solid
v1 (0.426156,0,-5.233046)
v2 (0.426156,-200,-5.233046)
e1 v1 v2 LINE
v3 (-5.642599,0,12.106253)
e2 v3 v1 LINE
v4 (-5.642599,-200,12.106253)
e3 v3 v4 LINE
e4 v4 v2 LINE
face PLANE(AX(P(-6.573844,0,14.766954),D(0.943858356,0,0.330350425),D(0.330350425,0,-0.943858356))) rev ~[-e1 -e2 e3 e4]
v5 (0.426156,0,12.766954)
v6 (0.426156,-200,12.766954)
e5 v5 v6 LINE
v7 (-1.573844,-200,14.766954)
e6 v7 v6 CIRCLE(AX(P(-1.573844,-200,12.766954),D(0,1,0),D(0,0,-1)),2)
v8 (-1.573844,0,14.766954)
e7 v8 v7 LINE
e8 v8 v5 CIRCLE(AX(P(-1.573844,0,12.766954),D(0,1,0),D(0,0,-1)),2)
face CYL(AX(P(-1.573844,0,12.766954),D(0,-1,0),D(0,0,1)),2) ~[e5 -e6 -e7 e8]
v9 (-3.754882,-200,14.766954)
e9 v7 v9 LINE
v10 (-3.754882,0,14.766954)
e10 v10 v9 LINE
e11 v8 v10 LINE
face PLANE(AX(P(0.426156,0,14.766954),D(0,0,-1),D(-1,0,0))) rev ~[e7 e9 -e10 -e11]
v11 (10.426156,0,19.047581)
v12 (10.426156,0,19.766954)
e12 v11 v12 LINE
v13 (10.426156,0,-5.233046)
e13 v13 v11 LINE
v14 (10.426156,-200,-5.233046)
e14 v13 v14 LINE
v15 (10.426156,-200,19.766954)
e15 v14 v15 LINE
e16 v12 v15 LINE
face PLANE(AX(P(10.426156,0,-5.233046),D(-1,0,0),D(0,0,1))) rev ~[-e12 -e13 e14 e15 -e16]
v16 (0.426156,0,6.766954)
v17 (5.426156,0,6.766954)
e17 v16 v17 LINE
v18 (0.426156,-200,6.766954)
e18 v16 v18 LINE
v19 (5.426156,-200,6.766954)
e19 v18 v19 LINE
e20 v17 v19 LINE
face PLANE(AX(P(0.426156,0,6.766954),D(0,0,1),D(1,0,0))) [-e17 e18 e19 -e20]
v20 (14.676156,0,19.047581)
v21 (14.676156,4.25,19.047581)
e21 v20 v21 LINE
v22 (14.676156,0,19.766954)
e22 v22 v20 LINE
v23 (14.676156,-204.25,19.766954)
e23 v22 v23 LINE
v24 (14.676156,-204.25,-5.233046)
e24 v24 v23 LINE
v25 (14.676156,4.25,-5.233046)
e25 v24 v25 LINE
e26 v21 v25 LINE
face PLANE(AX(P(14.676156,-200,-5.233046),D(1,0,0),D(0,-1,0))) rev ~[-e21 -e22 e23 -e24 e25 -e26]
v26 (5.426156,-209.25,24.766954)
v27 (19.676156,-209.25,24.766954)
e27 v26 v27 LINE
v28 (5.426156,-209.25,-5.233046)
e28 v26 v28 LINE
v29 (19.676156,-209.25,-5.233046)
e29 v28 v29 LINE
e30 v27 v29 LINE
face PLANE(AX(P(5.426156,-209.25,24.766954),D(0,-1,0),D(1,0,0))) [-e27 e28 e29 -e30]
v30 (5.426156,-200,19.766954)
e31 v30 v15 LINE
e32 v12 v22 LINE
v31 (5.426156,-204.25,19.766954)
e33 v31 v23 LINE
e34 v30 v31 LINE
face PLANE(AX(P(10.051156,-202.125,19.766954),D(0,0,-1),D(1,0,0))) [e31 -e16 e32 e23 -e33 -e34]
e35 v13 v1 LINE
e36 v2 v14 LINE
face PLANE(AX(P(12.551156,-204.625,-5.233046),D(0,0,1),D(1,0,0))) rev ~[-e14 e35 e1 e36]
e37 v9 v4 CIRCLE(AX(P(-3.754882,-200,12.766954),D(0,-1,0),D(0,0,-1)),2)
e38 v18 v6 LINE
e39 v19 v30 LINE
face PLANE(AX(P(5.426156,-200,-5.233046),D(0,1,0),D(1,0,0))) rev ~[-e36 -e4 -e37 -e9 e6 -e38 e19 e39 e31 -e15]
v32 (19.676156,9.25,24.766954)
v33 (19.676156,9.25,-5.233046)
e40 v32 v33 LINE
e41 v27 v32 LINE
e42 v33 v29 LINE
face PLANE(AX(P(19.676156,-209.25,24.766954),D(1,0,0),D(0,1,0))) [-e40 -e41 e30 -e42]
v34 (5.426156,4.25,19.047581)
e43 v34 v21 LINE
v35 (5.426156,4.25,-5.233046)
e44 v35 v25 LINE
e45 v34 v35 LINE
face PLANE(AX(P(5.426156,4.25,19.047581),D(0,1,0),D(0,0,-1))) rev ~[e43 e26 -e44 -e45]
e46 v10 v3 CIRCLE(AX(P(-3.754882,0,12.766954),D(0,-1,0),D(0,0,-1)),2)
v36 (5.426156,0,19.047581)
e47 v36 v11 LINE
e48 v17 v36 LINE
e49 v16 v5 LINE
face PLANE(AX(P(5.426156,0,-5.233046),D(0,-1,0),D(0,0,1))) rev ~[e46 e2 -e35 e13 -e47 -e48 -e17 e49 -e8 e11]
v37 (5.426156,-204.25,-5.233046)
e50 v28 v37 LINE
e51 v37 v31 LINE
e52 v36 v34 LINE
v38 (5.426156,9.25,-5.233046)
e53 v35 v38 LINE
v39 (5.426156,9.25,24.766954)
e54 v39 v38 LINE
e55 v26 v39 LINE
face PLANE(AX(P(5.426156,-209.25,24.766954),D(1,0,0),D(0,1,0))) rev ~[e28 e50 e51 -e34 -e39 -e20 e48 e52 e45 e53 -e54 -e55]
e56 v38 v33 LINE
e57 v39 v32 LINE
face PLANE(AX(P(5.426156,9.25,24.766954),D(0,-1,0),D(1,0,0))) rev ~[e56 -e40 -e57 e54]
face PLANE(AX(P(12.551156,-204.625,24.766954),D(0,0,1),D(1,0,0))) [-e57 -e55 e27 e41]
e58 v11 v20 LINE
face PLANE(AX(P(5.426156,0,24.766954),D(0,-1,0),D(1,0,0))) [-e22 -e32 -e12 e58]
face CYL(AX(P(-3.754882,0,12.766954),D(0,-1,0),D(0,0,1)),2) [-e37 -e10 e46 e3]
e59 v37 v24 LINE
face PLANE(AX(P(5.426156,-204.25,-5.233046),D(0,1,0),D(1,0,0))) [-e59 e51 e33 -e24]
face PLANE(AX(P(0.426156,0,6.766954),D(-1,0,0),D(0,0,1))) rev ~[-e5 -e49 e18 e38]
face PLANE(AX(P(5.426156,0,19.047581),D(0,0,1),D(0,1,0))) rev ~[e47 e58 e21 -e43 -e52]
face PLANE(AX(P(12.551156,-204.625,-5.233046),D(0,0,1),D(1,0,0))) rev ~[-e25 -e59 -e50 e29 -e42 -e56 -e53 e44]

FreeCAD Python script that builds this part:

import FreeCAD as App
import Part
import Sketcher
from FreeCAD import Vector


def edges_at(feature, points):
    """Names of the edges that pass closest to the given points."""
    edges = feature.Shape.Edges
    near = lambda p: min(range(len(edges)), key=lambda i: edges[i].distToShape(Part.Vertex(*p))[0])
    return sorted({f"Edge{near(p) + 1}" for p in points})


def add_polygon(sketch, points):
    """Adds a closed chain of lines whose ends are joined by coincident constraints."""
    first, n = sketch.GeometryCount, len(points)
    for a, b in zip(points, points[1:] + points[:1]):
        sketch.addGeometry(Part.LineSegment(App.Vector(*a, 0), App.Vector(*b, 0)), False)
    for i in range(n):
        sketch.addConstraint(Sketcher.Constraint("Coincident", first + i, 2, first + (i + 1) % n, 1))

doc = App.newDocument("Part")
body = doc.addObject("PartDesign::Body", "Body")

# Sketch on XZ plane
sketch1 = doc.addObject("Sketcher::SketchObject", "Sketch")
body.addObject(sketch1)
sketch1.AttachmentSupport = (doc.XZ_Plane, [""])
sketch1.MapMode = "FlatFace"
add_polygon(sketch1, [(0.4, 14.8), (-6.6, 14.8), (0.4, -5.2), (10.4, -5.2), (10.4, 19.8), (14.7, 19.8), (14.7, -5.2), (19.7, -5.2), (19.7, 24.8), (5.4, 24.8), (5.4, 6.8), (0.4, 6.8)])  # lines 0-11
sketch1.addConstraint([
    Sketcher.Constraint("Horizontal", 0),
    Sketcher.Constraint("Horizontal", 2),
    Sketcher.Constraint("Vertical", 3),
    Sketcher.Constraint("Horizontal", 4),
    Sketcher.Constraint("Vertical", 5),
    Sketcher.Constraint("Horizontal", 6),
    Sketcher.Constraint("Vertical", 7),
    Sketcher.Constraint("Horizontal", 8),
    Sketcher.Constraint("Vertical", 9),
    Sketcher.Constraint("Horizontal", 10),
    Sketcher.Constraint("Vertical", 11),
    Sketcher.Constraint("Horizontal", 2, 2, 5, 2),
    Sketcher.Constraint("Vertical", 1, 2, 10, 2),
    Sketcher.Constraint("Equal", 6, 10),
    Sketcher.Constraint("DistanceX", 0, 2, 0, 1, 7.0),
    Sketcher.Constraint("DistanceX", 2, 1, 2, 2, 10.0),
    Sketcher.Constraint("DistanceX", 6, 1, 6, 2, 5.0),
    Sketcher.Constraint("DistanceY", 3, 1, 3, 2, 25.0),
    Sketcher.Constraint("DistanceY", 7, 1, 7, 2, 30.0),
    Sketcher.Constraint("DistanceY", 9, 2, 9, 1, 18.0),
    Sketcher.Constraint("DistanceY", 11, 1, 11, 2, 8.0),
    Sketcher.Constraint("DistanceX", 4, 1, 4, 2, 4.25),
    Sketcher.Constraint("DistanceX", 0, 2, -1, 1, 6.573844),
    Sketcher.Constraint("DistanceY", -1, 1, 0, 2, 14.766954),
])
pad1 = doc.addObject("PartDesign::Pad", "Pad")
body.addObject(pad1)
pad1.Profile = sketch1
pad1.Length = 200
doc.recompute()

fillet = doc.addObject("PartDesign::Fillet", "Fillet")
body.addObject(fillet)
fillet.Base = (pad1, edges_at(pad1, [(-6.574, -100, 14.767), (0.426, -100, 14.767)]))
fillet.Radius = 2

# Sketch on XY plane
sketch2 = doc.addObject("Sketcher::SketchObject", "Sketch001")
body.addObject(sketch2)
sketch2.AttachmentSupport = (doc.XY_Plane, [""])
sketch2.MapMode = "FlatFace"
sketch2.AttachmentOffset = App.Placement(Vector(0, 0, 24.766954), App.Rotation())
add_polygon(sketch2, [(5, 9), (5, 0), (20, 0), (20, 9)])  # lines 0-3
sketch2.addConstraint([
    Sketcher.Constraint("Vertical", 0),
    Sketcher.Constraint("Horizontal", 1),
    Sketcher.Constraint("Vertical", 2),
    Sketcher.Constraint("Horizontal", 3),
    Sketcher.Constraint("PointOnObject", 0, 2, -1),
    Sketcher.Constraint("DistanceX", 1, 1, 1, 2, 14.25),
    Sketcher.Constraint("DistanceY", 0, 2, 0, 1, 9.25),
    Sketcher.Constraint("DistanceX", -1, 1, 0, 2, 5.426156),
])
pad2 = doc.addObject("PartDesign::Pad", "Pad001")
body.addObject(pad2)
pad2.Profile = sketch2
pad2.Length = 30
pad2.Reversed = True

# Sketch on YZ plane
sketch3 = doc.addObject("Sketcher::SketchObject", "Sketch002")
body.addObject(sketch3)
sketch3.AttachmentSupport = (doc.YZ_Plane, [""])
sketch3.MapMode = "FlatFace"
sketch3.AttachmentOffset = App.Placement(Vector(0, 0, 5.426156), App.Rotation())
add_polygon(sketch3, [(4.2, -5.2), (0, -5.2), (0, 19), (4.2, 19)])  # lines 0-3
sketch3.addConstraint([
    Sketcher.Constraint("Horizontal", 0),
    Sketcher.Constraint("Vertical", 1),
    Sketcher.Constraint("Horizontal", 2),
    Sketcher.Constraint("Vertical", 3),
    Sketcher.Constraint("PointOnObject", 0, 2, -2),
    Sketcher.Constraint("DistanceX", 0, 2, 0, 1, 4.25),
    Sketcher.Constraint("DistanceY", 1, 1, 1, 2, 24.280627),
    Sketcher.Constraint("DistanceY", -1, 1, 1, 2, 19.047581),
])
pocket1 = doc.addObject("PartDesign::Pocket", "Pocket")
body.addObject(pocket1)
pocket1.Profile = sketch3
pocket1.Length = 9.25
pocket1.Reversed = True

# Sketch on XY plane
sketch4 = doc.addObject("Sketcher::SketchObject", "Sketch003")
body.addObject(sketch4)
sketch4.AttachmentSupport = (doc.XY_Plane, [""])
sketch4.MapMode = "FlatFace"
sketch4.AttachmentOffset = App.Placement(Vector(0, 0, 24.766954), App.Rotation())
add_polygon(sketch4, [(5, -200), (5, -209), (20, -209), (20, -200)])  # lines 0-3
sketch4.addConstraint([
    Sketcher.Constraint("Vertical", 0),
    Sketcher.Constraint("Horizontal", 1),
    Sketcher.Constraint("Vertical", 2),
    Sketcher.Constraint("Horizontal", 3),
    Sketcher.Constraint("DistanceY", 2, 2, -1, 1, 200.0),
    Sketcher.Constraint("DistanceX", 1, 1, 1, 2, 14.25),
    Sketcher.Constraint("DistanceY", 0, 2, 0, 1, 9.25),
    Sketcher.Constraint("DistanceX", -1, 1, 0, 2, 5.426156),
])
pad3 = doc.addObject("PartDesign::Pad", "Pad002")
body.addObject(pad3)
pad3.Profile = sketch4
pad3.Length = 30
pad3.Reversed = True

# Sketch on XY plane
sketch5 = doc.addObject("Sketcher::SketchObject", "Sketch004")
body.addObject(sketch5)
sketch5.AttachmentSupport = (doc.XY_Plane, [""])
sketch5.MapMode = "FlatFace"
sketch5.AttachmentOffset = App.Placement(Vector(0, 0, -5.233046), App.Rotation())
add_polygon(sketch5, [(5.4, -204.2), (5.4, -200), (14.7, -200), (14.7, -204.2)])  # lines 0-3
sketch5.addConstraint([
    Sketcher.Constraint("Vertical", 0),
    Sketcher.Constraint("Horizontal", 1),
    Sketcher.Constraint("Vertical", 2),
    Sketcher.Constraint("Horizontal", 3),
    Sketcher.Constraint("DistanceY", 0, 2, -1, 1, 200.0),
    Sketcher.Constraint("DistanceX", 1, 1, 1, 2, 9.25),
    Sketcher.Constraint("DistanceY", 0, 1, 0, 2, 4.25),
    Sketcher.Constraint("DistanceX", -1, 1, 0, 2, 5.426156),
])
pocket2 = doc.addObject("PartDesign::Pocket", "Pocket001")
body.addObject(pocket2)
pocket2.Profile = sketch5
pocket2.Length = 25
pocket2.Reversed = True

doc.recompute()
